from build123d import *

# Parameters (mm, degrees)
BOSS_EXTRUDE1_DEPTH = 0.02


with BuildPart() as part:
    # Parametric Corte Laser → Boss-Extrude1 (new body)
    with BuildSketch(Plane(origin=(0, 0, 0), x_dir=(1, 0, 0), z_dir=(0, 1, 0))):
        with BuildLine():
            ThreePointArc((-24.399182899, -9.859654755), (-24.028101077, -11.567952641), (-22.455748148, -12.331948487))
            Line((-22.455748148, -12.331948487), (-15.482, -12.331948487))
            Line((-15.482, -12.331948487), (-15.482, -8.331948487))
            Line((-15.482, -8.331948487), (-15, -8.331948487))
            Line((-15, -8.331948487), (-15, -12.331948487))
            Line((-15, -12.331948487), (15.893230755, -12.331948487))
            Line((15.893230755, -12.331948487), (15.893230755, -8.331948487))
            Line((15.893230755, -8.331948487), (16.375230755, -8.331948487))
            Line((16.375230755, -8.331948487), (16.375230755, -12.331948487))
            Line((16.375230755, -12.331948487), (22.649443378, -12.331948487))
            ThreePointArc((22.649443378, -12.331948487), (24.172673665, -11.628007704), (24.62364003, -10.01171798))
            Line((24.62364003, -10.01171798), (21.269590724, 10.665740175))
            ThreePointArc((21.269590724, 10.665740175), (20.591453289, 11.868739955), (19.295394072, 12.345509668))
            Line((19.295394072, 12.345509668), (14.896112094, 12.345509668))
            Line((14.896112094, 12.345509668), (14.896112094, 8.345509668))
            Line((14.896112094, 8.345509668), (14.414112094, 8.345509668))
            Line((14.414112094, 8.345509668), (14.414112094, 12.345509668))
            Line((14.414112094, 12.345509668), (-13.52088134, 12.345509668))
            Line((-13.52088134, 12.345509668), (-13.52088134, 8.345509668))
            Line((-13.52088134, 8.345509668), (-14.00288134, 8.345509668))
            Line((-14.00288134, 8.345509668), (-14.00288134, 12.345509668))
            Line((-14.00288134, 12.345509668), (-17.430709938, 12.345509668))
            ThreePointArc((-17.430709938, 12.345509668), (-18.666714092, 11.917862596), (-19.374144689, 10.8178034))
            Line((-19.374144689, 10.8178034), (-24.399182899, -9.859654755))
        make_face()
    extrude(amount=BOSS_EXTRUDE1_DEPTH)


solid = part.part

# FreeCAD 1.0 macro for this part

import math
import FreeCAD as App
import Part
import Sketcher
Q = App.Units.Quantity

doc = App.newDocument("Part")
body = doc.addObject("PartDesign::Body", "Body")

# Sketch on XZ plane
sketch1 = body.newObject("Sketcher::SketchObject", "Sketch")
sketch1.AttachmentSupport = (doc.getObject("XZ_Plane"), [""])
sketch1.MapMode = "FlatFace"
sketch1.addGeometry(Part.ArcOfCircle(Part.Circle(App.Vector(-22.46, 10.33, 0), App.Vector(0, 0, 1), 2), math.radians(90), math.radians(194)), False)
sketch1.addGeometry(Part.LineSegment(App.Vector(-22.46, 12.33, 0), App.Vector(-15.48, 12.33, 0)), False)
sketch1.addGeometry(Part.LineSegment(App.Vector(-15.48, 12.33, 0), App.Vector(-15.48, 8.33, 0)), False)
sketch1.addGeometry(Part.LineSegment(App.Vector(-15.48, 8.33, 0), App.Vector(-15, 8.33, 0)), False)
sketch1.addGeometry(Part.LineSegment(App.Vector(-15, 8.33, 0), App.Vector(-15, 12.33, 0)), False)
sketch1.addGeometry(Part.LineSegment(App.Vector(-15, 12.33, 0), App.Vector(15.89, 12.33, 0)), False)
sketch1.addGeometry(Part.LineSegment(App.Vector(15.89, 12.33, 0), App.Vector(15.89, 8.33, 0)), False)
sketch1.addGeometry(Part.LineSegment(App.Vector(15.89, 8.33, 0), App.Vector(16.38, 8.33, 0)), False)
sketch1.addGeometry(Part.LineSegment(App.Vector(16.38, 8.33, 0), App.Vector(16.38, 12.33, 0)), False)
sketch1.addGeometry(Part.LineSegment(App.Vector(16.38, 12.33, 0), App.Vector(22.65, 12.33, 0)), False)
sketch1.addGeometry(Part.ArcOfCircle(Part.Circle(App.Vector(22.65, 10.33, 0), App.Vector(0, 0, 1), 2), math.radians(-9), math.radians(90)), False)
sketch1.addGeometry(Part.LineSegment(App.Vector(24.62, 10.01, 0), App.Vector(21.27, -10.67, 0)), False)
sketch1.addGeometry(Part.ArcOfCircle(Part.Circle(App.Vector(19.3, -10.35, 0), App.Vector(0, 0, 1), 2), math.radians(-90), math.radians(-9)), False)
sketch1.addGeometry(Part.LineSegment(App.Vector(19.3, -12.35, 0), App.Vector(14.9, -12.35, 0)), False)
sketch1.addGeometry(Part.LineSegment(App.Vector(14.9, -12.35, 0), App.Vector(14.9, -8.35, 0)), False)
sketch1.addGeometry(Part.LineSegment(App.Vector(14.9, -8.35, 0), App.Vector(14.41, -8.35, 0)), False)
sketch1.addGeometry(Part.LineSegment(App.Vector(14.41, -8.35, 0), App.Vector(14.41, -12.35, 0)), False)
sketch1.addGeometry(Part.LineSegment(App.Vector(14.41, -12.35, 0), App.Vector(-13.52, -12.35, 0)), False)
sketch1.addGeometry(Part.LineSegment(App.Vector(-13.52, -12.35, 0), App.Vector(-13.52, -8.35, 0)), False)
sketch1.addGeometry(Part.LineSegment(App.Vector(-13.52, -8.35, 0), App.Vector(-14, -8.35, 0)), False)
sketch1.addGeometry(Part.LineSegment(App.Vector(-14, -8.35, 0), App.Vector(-14, -12.35, 0)), False)
sketch1.addGeometry(Part.LineSegment(App.Vector(-14, -12.35, 0), App.Vector(-17.43, -12.35, 0)), False)
sketch1.addGeometry(Part.ArcOfCircle(Part.Circle(App.Vector(-17.43, -10.35, 0), App.Vector(0, 0, 1), 2), math.radians(-166), math.radians(-90)), False)
sketch1.addGeometry(Part.LineSegment(App.Vector(-19.37, -10.82, 0), App.Vector(-24.4, 9.86, 0)), False)
sketch1.addConstraint(Sketcher.Constraint("Tangent", 0, 1, 1, 1))
sketch1.addConstraint(Sketcher.Constraint("Coincident", 1, 2, 2, 1))
sketch1.addConstraint(Sketcher.Constraint("Coincident", 2, 2, 3, 1))
sketch1.addConstraint(Sketcher.Constraint("Coincident", 3, 2, 4, 1))
sketch1.addConstraint(Sketcher.Constraint("Coincident", 4, 2, 5, 1))
sketch1.addConstraint(Sketcher.Constraint("Coincident", 5, 2, 6, 1))
sketch1.addConstraint(Sketcher.Constraint("Coincident", 6, 2, 7, 1))
sketch1.addConstraint(Sketcher.Constraint("Coincident", 7, 2, 8, 1))
sketch1.addConstraint(Sketcher.Constraint("Coincident", 8, 2, 9, 1))
sketch1.addConstraint(Sketcher.Constraint("Tangent", 9, 2, 10, 2))
sketch1.addConstraint(Sketcher.Constraint("Tangent", 10, 1, 11, 1))
sketch1.addConstraint(Sketcher.Constraint("Tangent", 11, 2, 12, 2))
sketch1.addConstraint(Sketcher.Constraint("Tangent", 12, 1, 13, 1))
sketch1.addConstraint(Sketcher.Constraint("Coincident", 13, 2, 14, 1))
sketch1.addConstraint(Sketcher.Constraint("Coincident", 14, 2, 15, 1))
sketch1.addConstraint(Sketcher.Constraint("Coincident", 15, 2, 16, 1))
sketch1.addConstraint(Sketcher.Constraint("Coincident", 16, 2, 17, 1))
sketch1.addConstraint(Sketcher.Constraint("Coincident", 17, 2, 18, 1))
sketch1.addConstraint(Sketcher.Constraint("Coincident", 18, 2, 19, 1))
sketch1.addConstraint(Sketcher.Constraint("Coincident", 19, 2, 20, 1))
sketch1.addConstraint(Sketcher.Constraint("Coincident", 20, 2, 21, 1))
sketch1.addConstraint(Sketcher.Constraint("Tangent", 21, 2, 22, 2))
sketch1.addConstraint(Sketcher.Constraint("Tangent", 22, 1, 23, 1))
sketch1.addConstraint(Sketcher.Constraint("Tangent", 23, 2, 0, 2))
sketch1.addConstraint(Sketcher.Constraint("Horizontal", 1))
sketch1.addConstraint(Sketcher.Constraint("Vertical", 2))
sketch1.addConstraint(Sketcher.Constraint("Horizontal", 3))
sketch1.addConstraint(Sketcher.Constraint("Vertical", 4))
sketch1.addConstraint(Sketcher.Constraint("Horizontal", 5))
sketch1.addConstraint(Sketcher.Constraint("Vertical", 6))
sketch1.addConstraint(Sketcher.Constraint("Horizontal", 7))
sketch1.addConstraint(Sketcher.Constraint("Vertical", 8))
sketch1.addConstraint(Sketcher.Constraint("Horizontal", 9))
sketch1.addConstraint(Sketcher.Constraint("Horizontal", 13))
sketch1.addConstraint(Sketcher.Constraint("Vertical", 14))
sketch1.addConstraint(Sketcher.Constraint("Horizontal", 15))
sketch1.addConstraint(Sketcher.Constraint("Vertical", 16))
sketch1.addConstraint(Sketcher.Constraint("Horizontal", 17))
sketch1.addConstraint(Sketcher.Constraint("Vertical", 18))
sketch1.addConstraint(Sketcher.Constraint("Horizontal", 19))
sketch1.addConstraint(Sketcher.Constraint("Vertical", 20))
sketch1.addConstraint(Sketcher.Constraint("Horizontal", 21))
sketch1.addConstraint(Sketcher.Constraint("Equal", 0, 10))
sketch1.addConstraint(Sketcher.Constraint("Equal", 10, 12))
sketch1.addConstraint(Sketcher.Constraint("Equal", 12, 22))
sketch1.addConstraint(Sketcher.Constraint("Horizontal", 0, 3, 10, 3))
sketch1.addConstraint(Sketcher.Constraint("Horizontal", 12, 3, 22, 3))
sketch1.addConstraint(Sketcher.Constraint("Horizontal", 1, 2, 4, 2))
sketch1.addConstraint(Sketcher.Constraint("Horizontal", 3, 2, 6, 2))
sketch1.addConstraint(Sketcher.Constraint("Horizontal", 13, 2, 16, 2))
sketch1.addConstraint(Sketcher.Constraint("Horizontal", 15, 2, 18, 2))
sketch1.addConstraint(Sketcher.Constraint("Equal", 3, 7))
sketch1.addConstraint(Sketcher.Constraint("Equal", 7, 15))
sketch1.addConstraint(Sketcher.Constraint("Equal", 15, 19))
sketch1.addConstraint(Sketcher.Constraint("Equal", 8, 14))
sketch1.addConstraint(Sketcher.Constraint("Radius", 0, Q("2 mm")))
sketch1.addConstraint(Sketcher.Constraint("DistanceY", 2, 2, 2, 1, Q("4 mm")))
sketch1.addConstraint(Sketcher.Constraint("DistanceX", 3, 2, -1, 1, Q("15 mm")))
sketch1.addConstraint(Sketcher.Constraint("DistanceX", 3, 1, 3, 2, Q("0.482 mm")))
sketch1.addConstraint(Sketcher.Constraint("DistanceX", 1, 1, 1, 2, Q("6.973748 mm")))
sketch1.addConstraint(Sketcher.Constraint("DistanceX", 5, 1, 5, 2, Q("30.893231 mm")))
sketch1.addConstraint(Sketcher.Constraint("DistanceX", 13, 2, 13, 1, Q("4.399282 mm")))
sketch1.addConstraint(Sketcher.Constraint("DistanceX", 21, 2, 21, 1, Q("3.427829 mm")))
sketch1.addConstraint(Sketcher.Constraint("Distance", 11, Q("20.947719 mm")))
sketch1.addConstraint(Sketcher.Constraint("DistanceX", 9, 1, 9, 2, Q("6.274213 mm")))
sketch1.addConstraint(Sketcher.Constraint("DistanceX", 17, 2, 17, 1, Q("27.934993 mm")))
sketch1.addConstraint(Sketcher.Constraint("DistanceY", -1, 1, 0, 3, Q("10.331948 mm")))
sketch1.addConstraint(Sketcher.Constraint("DistanceY", 12, 3, -1, 1, Q("10.34551 mm")))
pad1 = body.newObject("PartDesign::Pad", "Pad")
pad1.Profile = sketch1
pad1.Length = 0.02
pad1.Reversed = True

doc.recompute()
